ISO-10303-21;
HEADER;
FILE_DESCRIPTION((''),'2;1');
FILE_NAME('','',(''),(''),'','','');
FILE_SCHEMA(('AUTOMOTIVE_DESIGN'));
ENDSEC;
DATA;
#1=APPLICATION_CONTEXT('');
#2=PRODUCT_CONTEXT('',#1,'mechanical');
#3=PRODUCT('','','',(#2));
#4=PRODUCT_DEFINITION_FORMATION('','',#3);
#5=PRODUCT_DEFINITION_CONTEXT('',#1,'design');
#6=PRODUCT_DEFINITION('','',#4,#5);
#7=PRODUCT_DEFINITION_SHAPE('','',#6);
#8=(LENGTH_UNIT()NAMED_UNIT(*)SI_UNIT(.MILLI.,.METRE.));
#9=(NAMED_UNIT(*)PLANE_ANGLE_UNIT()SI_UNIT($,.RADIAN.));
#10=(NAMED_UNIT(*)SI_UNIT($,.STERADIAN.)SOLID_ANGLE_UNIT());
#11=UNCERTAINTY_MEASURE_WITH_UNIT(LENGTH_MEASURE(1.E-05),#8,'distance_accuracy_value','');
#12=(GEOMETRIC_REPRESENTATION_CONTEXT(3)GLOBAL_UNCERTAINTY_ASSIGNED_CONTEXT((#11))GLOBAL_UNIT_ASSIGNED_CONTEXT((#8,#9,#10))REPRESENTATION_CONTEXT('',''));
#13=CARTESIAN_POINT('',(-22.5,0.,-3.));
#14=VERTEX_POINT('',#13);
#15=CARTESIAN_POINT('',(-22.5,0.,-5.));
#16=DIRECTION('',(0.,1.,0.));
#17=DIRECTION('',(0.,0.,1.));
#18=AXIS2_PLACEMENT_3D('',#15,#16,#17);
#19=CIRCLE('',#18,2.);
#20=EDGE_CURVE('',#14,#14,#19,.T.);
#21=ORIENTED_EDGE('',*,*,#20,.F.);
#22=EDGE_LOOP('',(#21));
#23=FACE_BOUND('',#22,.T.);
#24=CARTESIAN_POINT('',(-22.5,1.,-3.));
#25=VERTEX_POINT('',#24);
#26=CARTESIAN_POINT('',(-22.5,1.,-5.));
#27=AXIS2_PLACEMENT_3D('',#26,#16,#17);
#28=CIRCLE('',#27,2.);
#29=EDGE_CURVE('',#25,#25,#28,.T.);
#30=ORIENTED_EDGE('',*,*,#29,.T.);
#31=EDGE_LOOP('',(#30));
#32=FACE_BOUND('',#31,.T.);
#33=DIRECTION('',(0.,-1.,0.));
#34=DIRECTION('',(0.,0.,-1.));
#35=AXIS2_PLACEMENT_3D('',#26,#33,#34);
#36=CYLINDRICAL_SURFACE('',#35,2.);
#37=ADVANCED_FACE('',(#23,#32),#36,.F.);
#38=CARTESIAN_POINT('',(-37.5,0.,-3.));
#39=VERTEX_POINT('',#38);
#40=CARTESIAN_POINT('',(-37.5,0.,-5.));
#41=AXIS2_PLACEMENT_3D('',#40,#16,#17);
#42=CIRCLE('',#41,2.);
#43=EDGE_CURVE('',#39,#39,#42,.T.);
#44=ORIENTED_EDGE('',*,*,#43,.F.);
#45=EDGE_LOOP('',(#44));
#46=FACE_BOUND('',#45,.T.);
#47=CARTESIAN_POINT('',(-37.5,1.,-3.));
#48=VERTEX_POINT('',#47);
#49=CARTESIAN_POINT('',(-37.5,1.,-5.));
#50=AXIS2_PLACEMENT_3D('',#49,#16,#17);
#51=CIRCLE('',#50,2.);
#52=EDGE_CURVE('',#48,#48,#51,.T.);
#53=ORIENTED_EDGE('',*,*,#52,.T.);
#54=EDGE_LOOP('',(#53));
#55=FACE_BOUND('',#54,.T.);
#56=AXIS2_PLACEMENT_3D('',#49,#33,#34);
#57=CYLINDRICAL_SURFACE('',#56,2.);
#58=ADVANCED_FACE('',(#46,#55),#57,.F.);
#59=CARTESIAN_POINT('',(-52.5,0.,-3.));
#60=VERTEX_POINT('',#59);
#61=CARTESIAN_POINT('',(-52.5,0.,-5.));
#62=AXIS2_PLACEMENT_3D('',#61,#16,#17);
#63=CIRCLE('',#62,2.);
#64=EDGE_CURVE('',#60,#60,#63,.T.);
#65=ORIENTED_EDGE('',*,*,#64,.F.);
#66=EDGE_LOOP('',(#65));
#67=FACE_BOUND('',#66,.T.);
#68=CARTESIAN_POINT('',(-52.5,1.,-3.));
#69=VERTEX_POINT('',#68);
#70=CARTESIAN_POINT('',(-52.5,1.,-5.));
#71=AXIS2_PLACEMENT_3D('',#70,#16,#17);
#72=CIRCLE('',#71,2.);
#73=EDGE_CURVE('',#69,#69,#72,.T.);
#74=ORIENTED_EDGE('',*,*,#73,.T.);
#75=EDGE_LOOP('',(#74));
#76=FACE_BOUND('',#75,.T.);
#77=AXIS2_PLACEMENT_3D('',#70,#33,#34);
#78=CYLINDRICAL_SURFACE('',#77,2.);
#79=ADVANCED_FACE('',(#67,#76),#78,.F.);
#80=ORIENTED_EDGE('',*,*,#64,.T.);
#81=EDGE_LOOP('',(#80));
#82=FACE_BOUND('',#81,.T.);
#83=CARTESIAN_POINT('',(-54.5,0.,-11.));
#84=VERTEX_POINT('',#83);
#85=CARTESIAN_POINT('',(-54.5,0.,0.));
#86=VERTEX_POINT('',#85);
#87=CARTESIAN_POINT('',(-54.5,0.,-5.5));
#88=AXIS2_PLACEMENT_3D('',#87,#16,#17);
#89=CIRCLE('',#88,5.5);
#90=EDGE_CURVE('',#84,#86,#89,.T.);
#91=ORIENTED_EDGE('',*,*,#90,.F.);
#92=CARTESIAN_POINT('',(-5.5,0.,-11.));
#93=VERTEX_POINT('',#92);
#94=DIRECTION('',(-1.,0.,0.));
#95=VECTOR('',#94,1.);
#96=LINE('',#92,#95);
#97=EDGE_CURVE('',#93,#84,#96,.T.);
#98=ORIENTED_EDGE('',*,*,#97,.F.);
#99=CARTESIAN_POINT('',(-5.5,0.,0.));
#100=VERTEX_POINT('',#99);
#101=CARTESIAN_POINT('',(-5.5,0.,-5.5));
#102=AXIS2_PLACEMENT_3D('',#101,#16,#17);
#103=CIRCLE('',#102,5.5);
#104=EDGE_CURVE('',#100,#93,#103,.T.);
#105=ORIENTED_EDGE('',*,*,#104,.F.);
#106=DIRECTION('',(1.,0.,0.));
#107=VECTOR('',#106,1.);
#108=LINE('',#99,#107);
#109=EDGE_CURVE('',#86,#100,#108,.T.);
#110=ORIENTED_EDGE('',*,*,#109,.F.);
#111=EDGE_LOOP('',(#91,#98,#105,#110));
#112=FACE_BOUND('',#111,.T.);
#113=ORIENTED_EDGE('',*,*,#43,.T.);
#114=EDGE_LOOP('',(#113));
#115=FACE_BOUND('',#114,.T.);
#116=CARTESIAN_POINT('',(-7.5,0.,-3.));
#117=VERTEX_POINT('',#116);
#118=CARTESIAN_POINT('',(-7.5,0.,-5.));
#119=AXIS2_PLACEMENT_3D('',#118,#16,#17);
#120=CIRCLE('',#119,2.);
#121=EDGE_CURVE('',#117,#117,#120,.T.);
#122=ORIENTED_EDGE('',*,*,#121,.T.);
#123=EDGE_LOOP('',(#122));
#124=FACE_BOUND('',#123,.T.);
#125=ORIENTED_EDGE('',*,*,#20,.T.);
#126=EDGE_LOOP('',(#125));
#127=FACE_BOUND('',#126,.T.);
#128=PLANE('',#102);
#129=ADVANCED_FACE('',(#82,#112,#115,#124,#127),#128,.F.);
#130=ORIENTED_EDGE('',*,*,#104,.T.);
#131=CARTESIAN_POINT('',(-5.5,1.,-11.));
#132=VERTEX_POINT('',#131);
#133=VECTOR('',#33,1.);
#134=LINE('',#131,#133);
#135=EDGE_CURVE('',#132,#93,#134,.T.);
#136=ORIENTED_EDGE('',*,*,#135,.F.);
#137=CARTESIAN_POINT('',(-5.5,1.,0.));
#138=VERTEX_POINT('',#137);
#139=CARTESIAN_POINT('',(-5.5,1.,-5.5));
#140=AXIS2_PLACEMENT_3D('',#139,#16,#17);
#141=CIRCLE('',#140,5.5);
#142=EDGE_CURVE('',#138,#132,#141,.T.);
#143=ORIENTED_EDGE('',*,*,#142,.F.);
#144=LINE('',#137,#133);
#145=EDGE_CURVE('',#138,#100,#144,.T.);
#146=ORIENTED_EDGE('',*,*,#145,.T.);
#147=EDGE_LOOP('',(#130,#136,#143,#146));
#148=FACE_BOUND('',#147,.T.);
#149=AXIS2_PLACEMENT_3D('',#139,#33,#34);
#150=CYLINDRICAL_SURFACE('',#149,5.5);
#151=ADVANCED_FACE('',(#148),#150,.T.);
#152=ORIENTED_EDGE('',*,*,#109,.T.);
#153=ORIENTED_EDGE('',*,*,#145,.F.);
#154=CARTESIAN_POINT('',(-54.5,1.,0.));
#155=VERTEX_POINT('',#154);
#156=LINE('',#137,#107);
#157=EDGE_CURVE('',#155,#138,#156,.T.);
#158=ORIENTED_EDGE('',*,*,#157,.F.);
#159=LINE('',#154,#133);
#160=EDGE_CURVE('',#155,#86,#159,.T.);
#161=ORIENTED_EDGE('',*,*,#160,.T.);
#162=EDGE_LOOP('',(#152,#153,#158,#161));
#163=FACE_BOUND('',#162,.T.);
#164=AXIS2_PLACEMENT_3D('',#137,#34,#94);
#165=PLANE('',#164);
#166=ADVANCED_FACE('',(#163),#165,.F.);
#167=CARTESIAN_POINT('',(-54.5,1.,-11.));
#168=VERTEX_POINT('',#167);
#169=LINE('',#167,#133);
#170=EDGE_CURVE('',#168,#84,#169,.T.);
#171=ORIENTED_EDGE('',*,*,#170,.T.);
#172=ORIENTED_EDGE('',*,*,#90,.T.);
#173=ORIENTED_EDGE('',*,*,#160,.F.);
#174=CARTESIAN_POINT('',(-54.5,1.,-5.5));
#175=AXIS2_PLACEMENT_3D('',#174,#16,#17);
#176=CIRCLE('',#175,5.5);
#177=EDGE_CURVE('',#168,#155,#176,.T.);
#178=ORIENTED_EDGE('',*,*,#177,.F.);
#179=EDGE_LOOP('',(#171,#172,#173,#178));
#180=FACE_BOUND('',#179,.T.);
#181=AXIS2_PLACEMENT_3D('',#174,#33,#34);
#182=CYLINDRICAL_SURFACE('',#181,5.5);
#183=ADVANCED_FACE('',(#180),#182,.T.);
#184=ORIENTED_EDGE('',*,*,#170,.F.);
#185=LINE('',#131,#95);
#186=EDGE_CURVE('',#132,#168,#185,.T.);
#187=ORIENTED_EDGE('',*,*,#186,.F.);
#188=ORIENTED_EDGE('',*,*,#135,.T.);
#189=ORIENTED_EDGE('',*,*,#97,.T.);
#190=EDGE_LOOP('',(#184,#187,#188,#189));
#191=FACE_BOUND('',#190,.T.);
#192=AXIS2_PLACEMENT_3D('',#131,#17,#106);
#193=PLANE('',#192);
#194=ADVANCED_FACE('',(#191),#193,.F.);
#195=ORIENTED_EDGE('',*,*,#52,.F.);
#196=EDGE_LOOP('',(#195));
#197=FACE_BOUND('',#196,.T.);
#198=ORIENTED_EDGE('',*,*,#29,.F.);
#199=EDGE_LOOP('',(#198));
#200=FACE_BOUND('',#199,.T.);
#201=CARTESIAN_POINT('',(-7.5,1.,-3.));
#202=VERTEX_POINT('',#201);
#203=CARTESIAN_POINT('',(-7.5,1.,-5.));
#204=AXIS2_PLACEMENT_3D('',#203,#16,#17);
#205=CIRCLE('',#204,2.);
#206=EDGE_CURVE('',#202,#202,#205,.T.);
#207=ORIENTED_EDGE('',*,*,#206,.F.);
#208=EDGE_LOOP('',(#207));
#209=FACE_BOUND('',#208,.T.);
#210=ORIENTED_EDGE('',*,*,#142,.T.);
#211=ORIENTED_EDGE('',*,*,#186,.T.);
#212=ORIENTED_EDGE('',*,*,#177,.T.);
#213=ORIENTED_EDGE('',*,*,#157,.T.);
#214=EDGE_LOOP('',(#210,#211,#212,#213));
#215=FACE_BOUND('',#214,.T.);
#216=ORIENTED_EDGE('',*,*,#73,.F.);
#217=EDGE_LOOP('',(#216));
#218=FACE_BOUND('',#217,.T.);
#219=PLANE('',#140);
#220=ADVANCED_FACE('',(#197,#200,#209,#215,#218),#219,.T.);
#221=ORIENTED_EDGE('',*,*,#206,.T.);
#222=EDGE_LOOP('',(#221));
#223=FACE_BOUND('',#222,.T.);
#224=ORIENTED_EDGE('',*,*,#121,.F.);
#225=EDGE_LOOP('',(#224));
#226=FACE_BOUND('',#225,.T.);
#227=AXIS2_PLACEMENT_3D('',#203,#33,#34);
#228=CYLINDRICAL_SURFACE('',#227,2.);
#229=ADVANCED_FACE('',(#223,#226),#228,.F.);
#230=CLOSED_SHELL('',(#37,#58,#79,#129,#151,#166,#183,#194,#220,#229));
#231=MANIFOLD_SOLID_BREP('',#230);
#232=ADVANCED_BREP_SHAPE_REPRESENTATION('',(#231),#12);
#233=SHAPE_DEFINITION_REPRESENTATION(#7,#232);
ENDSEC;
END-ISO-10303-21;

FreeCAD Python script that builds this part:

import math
import FreeCAD as App
import Part
import Sketcher
from FreeCAD import Vector

doc = App.newDocument("Part")
body = doc.addObject("PartDesign::Body", "Body")

# Sketch on XZ plane
sketch1 = doc.addObject("Sketcher::SketchObject", "Sketch")
body.addObject(sketch1)
sketch1.AttachmentSupport = (doc.XZ_Plane, [""])
sketch1.MapMode = "FlatFace"
sketch1.addGeometry(Part.LineSegment(Vector(-54.5, 0, 0), Vector(-5.5, 0, 0)), False)
sketch1.addGeometry(Part.ArcOfCircle(Part.Circle(Vector(-5.5, -5.5, 0), Vector(0, 0, 1), 5.5), math.radians(-90), math.radians(90)), False)
sketch1.addGeometry(Part.LineSegment(Vector(-5.5, -11, 0), Vector(-54.5, -11, 0)), False)
sketch1.addGeometry(Part.ArcOfCircle(Part.Circle(Vector(-54.5, -5.5, 0), Vector(0, 0, 1), 5.5), math.radians(90), math.radians(270)), False)
sketch1.addGeometry(Part.Circle(Vector(-7.5, -5, 0), Vector(0, 0, 1), 2), False)
sketch1.addGeometry(Part.Circle(Vector(-22.5, -5, 0), Vector(0, 0, 1), 2), False)
sketch1.addGeometry(Part.Circle(Vector(-37.5, -5, 0), Vector(0, 0, 1), 2), False)
sketch1.addGeometry(Part.Circle(Vector(-52.5, -5, 0), Vector(0, 0, 1), 2), False)
sketch1.addConstraint(Sketcher.Constraint("Tangent", 0, 2, 1, 2))
sketch1.addConstraint(Sketcher.Constraint("Tangent", 1, 1, 2, 1))
sketch1.addConstraint(Sketcher.Constraint("Tangent", 2, 2, 3, 2))
sketch1.addConstraint(Sketcher.Constraint("Tangent", 3, 1, 0, 1))
sketch1.addConstraint(Sketcher.Constraint("Horizontal", 0))
sketch1.addConstraint(Sketcher.Constraint("Horizontal", 2))
sketch1.addConstraint(Sketcher.Constraint("Equal", 4, 5))
sketch1.addConstraint(Sketcher.Constraint("Equal", 5, 6))
sketch1.addConstraint(Sketcher.Constraint("Equal", 6, 7))
sketch1.addConstraint(Sketcher.Constraint("PointOnObject", 0, 2, -1))
sketch1.addConstraint(Sketcher.Constraint("Horizontal", 4, 3, 5, 3))
sketch1.addConstraint(Sketcher.Constraint("Horizontal", 5, 3, 6, 3))
sketch1.addConstraint(Sketcher.Constraint("Horizontal", 6, 3, 7, 3))
sketch1.addConstraint(Sketcher.Constraint("Diameter", 4, 4.0))
sketch1.addConstraint(Sketcher.Constraint("Radius", 1, 5.5))
sketch1.addConstraint(Sketcher.Constraint("DistanceX", 0, 1, 0, 2, 49.0))
sketch1.addConstraint(Sketcher.Constraint("DistanceY", 4, 3, -1, 1, 5.0))
sketch1.addConstraint(Sketcher.Constraint("DistanceX", 4, 3, 1, 3, 2.0))
sketch1.addConstraint(Sketcher.Constraint("DistanceX", 5, 3, 4, 3, 15.0))
sketch1.addConstraint(Sketcher.Constraint("DistanceX", 6, 3, 5, 3, 15.0))
sketch1.addConstraint(Sketcher.Constraint("DistanceX", 3, 3, 7, 3, 2.0))
sketch1.addConstraint(Sketcher.Constraint("DistanceX", 1, 3, -1, 1, 5.5))
pad1 = doc.addObject("PartDesign::Pad", "Pad")
body.addObject(pad1)
pad1.Profile = sketch1
pad1.Length = 1
pad1.Reversed = True

doc.recompute()
